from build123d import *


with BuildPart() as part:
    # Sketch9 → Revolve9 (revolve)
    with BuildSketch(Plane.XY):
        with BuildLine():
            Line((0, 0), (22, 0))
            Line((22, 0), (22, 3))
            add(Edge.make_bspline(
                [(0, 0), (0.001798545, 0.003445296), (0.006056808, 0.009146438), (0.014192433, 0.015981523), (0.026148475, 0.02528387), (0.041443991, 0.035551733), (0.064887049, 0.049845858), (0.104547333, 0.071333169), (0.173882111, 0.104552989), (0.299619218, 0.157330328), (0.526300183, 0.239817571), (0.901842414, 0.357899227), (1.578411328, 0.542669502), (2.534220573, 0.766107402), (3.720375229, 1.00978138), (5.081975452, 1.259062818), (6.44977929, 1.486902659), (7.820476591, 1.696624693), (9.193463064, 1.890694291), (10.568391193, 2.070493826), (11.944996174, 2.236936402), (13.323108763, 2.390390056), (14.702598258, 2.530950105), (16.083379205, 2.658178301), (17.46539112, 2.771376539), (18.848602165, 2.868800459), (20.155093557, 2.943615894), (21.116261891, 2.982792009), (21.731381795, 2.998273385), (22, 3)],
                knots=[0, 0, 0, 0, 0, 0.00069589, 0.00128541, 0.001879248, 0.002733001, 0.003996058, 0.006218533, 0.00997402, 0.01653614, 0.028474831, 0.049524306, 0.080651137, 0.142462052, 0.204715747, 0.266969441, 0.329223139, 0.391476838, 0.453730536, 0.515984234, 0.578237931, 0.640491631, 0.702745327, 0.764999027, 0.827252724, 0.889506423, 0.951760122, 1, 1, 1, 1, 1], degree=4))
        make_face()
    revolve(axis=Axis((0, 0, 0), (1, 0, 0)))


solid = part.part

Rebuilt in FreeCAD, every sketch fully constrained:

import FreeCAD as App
import Part
import Sketcher

V = App.Vector

doc = App.newDocument("Part")
body = doc.addObject("PartDesign::Body", "Body")

# Sketch on XY plane
sketch1 = doc.addObject("Sketcher::SketchObject", "Sketch")
body.addObject(sketch1)
sketch1.AttachmentSupport = (doc.XY_Plane, [""])
sketch1.MapMode = "FlatFace"
sketch1.addGeometry([
    Part.LineSegment(V(0, 0, 0), V(22, 0, 0)),
    Part.LineSegment(V(22, 0, 0), V(22, 3, 0)),
    Part.BSplineCurve([V(0, 0, 0), V(0.001799, 0.003445, 0), V(0.006057, 0.009146, 0), V(0.014192, 0.015982, 0), V(0.026148, 0.025284, 0), V(0.041444, 0.035552, 0), V(0.064887, 0.049846, 0), V(0.104547, 0.071333, 0), V(0.173882, 0.104553, 0), V(0.299619, 0.15733, 0), V(0.5263, 0.239818, 0), V(0.901842, 0.357899, 0), V(1.578411, 0.54267, 0), V(2.534221, 0.766107, 0), V(3.720375, 1.009781, 0), V(5.081975, 1.259063, 0), V(6.449779, 1.486903, 0), V(7.820477, 1.696625, 0), V(9.193463, 1.890694, 0), V(10.568391, 2.070494, 0), V(11.944996, 2.236936, 0), V(13.323109, 2.39039, 0), V(14.702598, 2.53095, 0), V(16.083379, 2.658178, 0), V(17.465391, 2.771377, 0), V(18.848602, 2.8688, 0), V(20.155094, 2.943616, 0), V(21.116262, 2.982792, 0), V(21.731382, 2.998273, 0), V(22, 3, 0)], [5, 1, 1, 1, 1, 1, 1, 1, 1, 1, 1, 1, 1, 1, 1, 1, 1, 1, 1, 1, 1, 1, 1, 1, 1, 1, 5], [0, 0.00069589, 0.00128541, 0.001879248, 0.002733001, 0.003996058, 0.006218533, 0.00997402, 0.01653614, 0.028474831, 0.049524306, 0.080651137, 0.142462052, 0.204715747, 0.266969441, 0.329223139, 0.391476838, 0.453730536, 0.515984234, 0.578237931, 0.640491631, 0.702745327, 0.764999027, 0.827252724, 0.889506423, 0.951760122, 1], False, 4, [1, 1, 1, 1, 1, 1, 1, 1, 1, 1, 1, 1, 1, 1, 1, 1, 1, 1, 1, 1, 1, 1, 1, 1, 1, 1, 1, 1, 1, 1], False),
], False)
sketch1.addConstraint([
    Sketcher.Constraint("Block", 2),
    Sketcher.Constraint("Coincident", 0, 2, 1, 1),
    Sketcher.Constraint("Coincident", 1, 2, 2, 2),
    Sketcher.Constraint("Coincident", 2, 1, 0, 1),
    Sketcher.Constraint("Horizontal", 0),
    Sketcher.Constraint("Vertical", 1),
])
revolution = doc.addObject("PartDesign::Revolution", "Revolution")
body.addObject(revolution)
revolution.Profile = sketch1
revolution.ReferenceAxis = (sketch1, ["H_Axis"])
revolution.Angle = 360

doc.recompute()
